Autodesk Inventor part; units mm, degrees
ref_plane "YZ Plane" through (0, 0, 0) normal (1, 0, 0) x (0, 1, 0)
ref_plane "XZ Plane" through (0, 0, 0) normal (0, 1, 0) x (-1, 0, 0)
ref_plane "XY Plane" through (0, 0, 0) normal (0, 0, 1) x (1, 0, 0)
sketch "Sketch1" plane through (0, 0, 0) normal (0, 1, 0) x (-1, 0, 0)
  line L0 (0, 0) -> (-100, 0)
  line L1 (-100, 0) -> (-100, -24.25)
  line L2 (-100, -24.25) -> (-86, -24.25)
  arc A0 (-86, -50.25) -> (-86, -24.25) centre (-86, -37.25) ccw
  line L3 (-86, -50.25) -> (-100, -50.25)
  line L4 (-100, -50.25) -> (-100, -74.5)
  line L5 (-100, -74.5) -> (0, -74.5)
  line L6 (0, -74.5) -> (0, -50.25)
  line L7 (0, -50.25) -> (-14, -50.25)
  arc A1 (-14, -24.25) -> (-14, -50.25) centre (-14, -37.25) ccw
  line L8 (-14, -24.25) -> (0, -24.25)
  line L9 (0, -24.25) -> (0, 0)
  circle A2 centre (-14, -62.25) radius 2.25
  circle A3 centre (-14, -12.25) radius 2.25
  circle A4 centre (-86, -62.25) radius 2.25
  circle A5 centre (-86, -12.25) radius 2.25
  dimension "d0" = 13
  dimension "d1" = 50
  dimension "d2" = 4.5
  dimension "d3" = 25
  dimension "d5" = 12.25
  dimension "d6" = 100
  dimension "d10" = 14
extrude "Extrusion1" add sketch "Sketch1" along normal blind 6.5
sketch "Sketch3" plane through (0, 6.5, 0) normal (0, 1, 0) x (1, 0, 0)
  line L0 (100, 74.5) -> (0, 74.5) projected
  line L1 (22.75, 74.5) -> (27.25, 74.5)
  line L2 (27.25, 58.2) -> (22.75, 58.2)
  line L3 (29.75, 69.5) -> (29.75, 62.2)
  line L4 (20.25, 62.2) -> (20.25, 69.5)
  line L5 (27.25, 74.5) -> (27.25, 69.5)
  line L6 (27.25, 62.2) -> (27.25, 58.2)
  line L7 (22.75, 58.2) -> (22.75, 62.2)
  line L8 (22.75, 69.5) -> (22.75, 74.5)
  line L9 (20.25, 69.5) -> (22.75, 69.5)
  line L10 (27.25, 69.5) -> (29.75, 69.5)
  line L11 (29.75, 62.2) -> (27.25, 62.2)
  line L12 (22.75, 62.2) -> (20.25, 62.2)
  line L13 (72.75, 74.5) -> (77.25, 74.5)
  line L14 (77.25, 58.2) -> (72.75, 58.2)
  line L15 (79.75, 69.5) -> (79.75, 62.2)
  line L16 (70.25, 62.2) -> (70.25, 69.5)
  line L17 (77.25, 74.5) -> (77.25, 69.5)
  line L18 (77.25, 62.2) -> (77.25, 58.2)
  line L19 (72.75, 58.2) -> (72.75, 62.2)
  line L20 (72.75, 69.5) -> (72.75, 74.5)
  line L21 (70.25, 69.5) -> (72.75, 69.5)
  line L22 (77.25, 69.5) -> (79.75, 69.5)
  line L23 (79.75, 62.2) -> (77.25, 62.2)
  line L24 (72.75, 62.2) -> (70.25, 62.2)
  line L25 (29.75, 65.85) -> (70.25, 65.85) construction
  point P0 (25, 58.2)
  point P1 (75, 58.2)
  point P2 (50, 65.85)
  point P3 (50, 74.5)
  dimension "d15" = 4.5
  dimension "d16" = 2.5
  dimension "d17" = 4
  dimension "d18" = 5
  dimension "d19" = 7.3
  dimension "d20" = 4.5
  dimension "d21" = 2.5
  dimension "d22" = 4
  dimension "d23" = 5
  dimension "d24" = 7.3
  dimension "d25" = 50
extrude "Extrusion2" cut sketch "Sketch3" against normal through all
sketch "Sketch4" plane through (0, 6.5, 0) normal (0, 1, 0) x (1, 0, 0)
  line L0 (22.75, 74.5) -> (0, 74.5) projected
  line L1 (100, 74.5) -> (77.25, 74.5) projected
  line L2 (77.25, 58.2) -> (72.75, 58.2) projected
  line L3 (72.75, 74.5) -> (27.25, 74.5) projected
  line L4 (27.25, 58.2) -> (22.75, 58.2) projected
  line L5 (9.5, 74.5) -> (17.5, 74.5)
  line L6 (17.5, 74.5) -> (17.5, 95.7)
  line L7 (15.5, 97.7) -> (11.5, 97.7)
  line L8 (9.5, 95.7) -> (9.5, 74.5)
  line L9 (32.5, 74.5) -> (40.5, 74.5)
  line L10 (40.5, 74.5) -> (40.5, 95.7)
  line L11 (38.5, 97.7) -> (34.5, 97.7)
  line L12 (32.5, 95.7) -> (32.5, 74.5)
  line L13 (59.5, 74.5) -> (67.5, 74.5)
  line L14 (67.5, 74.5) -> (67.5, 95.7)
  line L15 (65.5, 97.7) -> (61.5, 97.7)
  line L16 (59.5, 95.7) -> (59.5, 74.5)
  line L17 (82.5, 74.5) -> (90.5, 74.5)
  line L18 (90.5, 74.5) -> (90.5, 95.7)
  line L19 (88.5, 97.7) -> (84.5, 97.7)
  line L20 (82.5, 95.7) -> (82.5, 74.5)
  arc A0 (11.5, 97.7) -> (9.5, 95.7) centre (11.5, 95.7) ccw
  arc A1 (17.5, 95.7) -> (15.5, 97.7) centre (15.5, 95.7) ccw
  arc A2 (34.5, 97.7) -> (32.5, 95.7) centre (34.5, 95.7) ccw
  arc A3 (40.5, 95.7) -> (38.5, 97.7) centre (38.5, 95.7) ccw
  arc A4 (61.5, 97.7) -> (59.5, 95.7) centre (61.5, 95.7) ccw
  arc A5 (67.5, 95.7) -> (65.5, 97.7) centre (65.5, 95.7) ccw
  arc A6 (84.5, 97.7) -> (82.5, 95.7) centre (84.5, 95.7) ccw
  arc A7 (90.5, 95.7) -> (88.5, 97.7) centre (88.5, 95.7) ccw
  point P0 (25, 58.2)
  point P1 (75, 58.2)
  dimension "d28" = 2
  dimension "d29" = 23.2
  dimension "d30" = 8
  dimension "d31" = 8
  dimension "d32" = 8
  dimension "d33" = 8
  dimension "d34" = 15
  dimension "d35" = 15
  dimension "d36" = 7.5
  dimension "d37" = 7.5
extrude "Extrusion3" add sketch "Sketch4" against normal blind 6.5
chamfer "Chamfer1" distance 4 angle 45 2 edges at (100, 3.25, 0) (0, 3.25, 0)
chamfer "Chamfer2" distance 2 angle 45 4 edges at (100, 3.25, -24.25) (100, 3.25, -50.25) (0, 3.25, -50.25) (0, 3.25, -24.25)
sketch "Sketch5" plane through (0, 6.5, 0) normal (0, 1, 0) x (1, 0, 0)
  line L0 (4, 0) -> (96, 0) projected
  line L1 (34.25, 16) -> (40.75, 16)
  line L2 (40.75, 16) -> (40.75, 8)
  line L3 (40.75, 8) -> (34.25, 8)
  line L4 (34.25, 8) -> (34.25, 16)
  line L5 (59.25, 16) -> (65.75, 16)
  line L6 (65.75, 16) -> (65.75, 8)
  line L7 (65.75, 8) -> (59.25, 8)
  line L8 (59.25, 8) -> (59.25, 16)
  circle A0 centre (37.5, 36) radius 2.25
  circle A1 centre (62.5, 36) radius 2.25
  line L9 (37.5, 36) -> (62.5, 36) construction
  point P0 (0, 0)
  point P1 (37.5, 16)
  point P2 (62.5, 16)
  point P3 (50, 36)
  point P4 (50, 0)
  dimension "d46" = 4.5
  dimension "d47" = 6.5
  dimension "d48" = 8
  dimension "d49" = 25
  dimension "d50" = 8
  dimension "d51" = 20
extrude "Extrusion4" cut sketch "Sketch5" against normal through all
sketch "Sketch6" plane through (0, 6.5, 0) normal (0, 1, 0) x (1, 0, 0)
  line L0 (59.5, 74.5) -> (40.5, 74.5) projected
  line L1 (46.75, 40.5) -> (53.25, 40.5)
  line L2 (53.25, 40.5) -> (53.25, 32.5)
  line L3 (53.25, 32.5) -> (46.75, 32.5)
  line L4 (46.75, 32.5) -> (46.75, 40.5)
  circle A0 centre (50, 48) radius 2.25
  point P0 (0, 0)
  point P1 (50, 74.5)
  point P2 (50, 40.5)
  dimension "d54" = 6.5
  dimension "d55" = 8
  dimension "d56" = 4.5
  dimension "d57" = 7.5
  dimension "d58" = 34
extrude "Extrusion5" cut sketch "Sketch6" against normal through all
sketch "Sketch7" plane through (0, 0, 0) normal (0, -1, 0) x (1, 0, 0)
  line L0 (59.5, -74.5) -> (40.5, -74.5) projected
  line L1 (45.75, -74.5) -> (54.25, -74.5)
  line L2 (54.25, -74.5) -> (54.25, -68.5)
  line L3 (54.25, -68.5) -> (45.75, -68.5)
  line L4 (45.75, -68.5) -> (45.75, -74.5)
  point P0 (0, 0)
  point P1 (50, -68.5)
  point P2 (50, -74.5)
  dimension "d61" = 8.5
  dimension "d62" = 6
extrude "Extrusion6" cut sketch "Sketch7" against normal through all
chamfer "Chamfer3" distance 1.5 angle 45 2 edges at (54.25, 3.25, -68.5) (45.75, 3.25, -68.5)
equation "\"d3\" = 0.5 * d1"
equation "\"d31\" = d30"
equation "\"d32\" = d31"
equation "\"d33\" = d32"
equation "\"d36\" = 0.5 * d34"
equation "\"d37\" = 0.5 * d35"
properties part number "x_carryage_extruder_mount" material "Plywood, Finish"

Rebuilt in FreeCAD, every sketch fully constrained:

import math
import FreeCAD as App
import Part
import Sketcher


def edges_at(feature, points):
    """Names of the edges that pass closest to the given points."""
    edges = feature.Shape.Edges
    near = lambda p: min(range(len(edges)), key=lambda i: edges[i].distToShape(Part.Vertex(*p))[0])
    return sorted({f"Edge{near(p) + 1}" for p in points})


def add_polygon(sketch, points):
    """Adds a closed chain of lines whose ends are joined by coincident constraints."""
    first, n = sketch.GeometryCount, len(points)
    for a, b in zip(points, points[1:] + points[:1]):
        sketch.addGeometry(Part.LineSegment(App.Vector(*a, 0), App.Vector(*b, 0)), False)
    for i in range(n):
        sketch.addConstraint(Sketcher.Constraint("Coincident", first + i, 2, first + (i + 1) % n, 1))

doc = App.newDocument("Part")
body = doc.addObject("PartDesign::Body", "Body")

# Sketch on XZ plane
sketch1 = doc.addObject("Sketcher::SketchObject", "Sketch")
body.addObject(sketch1)
sketch1.AttachmentSupport = (doc.XZ_Plane, [""])
sketch1.MapMode = "FlatFace"
sketch1.addGeometry([
    Part.LineSegment(App.Vector(0, -24.2, 0), App.Vector(0, 0, 0)),  # 0
    Part.LineSegment(App.Vector(0, 0, 0), App.Vector(100, 0, 0)),  # 1
    Part.LineSegment(App.Vector(100, 0, 0), App.Vector(100, -24.2, 0)),  # 2
    Part.LineSegment(App.Vector(100, -24.2, 0), App.Vector(86, -24.2, 0)),  # 3
    Part.ArcOfCircle(Part.Circle(App.Vector(86, -37.2, 0), App.Vector(0, 0, 1), 13), math.radians(90), math.radians(270)),  # 4
    Part.LineSegment(App.Vector(86, -50.2, 0), App.Vector(100, -50.2, 0)),  # 5
    Part.LineSegment(App.Vector(100, -50.2, 0), App.Vector(100, -74.5, 0)),  # 6
    Part.LineSegment(App.Vector(100, -74.5, 0), App.Vector(0, -74.5, 0)),  # 7
    Part.LineSegment(App.Vector(0, -74.5, 0), App.Vector(0, -50.2, 0)),  # 8
    Part.LineSegment(App.Vector(0, -50.2, 0), App.Vector(14, -50.2, 0)),  # 9
    Part.ArcOfCircle(Part.Circle(App.Vector(14, -37.2, 0), App.Vector(0, 0, 1), 13), math.radians(-90), math.radians(90)),  # 10
    Part.LineSegment(App.Vector(14, -24.2, 0), App.Vector(0, -24.2, 0)),  # 11
    Part.Circle(App.Vector(86, -62.2, 0), App.Vector(0, 0, 1), 2.2),  # 12
    Part.Circle(App.Vector(14, -62.2, 0), App.Vector(0, 0, 1), 2.2),  # 13
    Part.Circle(App.Vector(86, -12.2, 0), App.Vector(0, 0, 1), 2.2),  # 14
    Part.Circle(App.Vector(14, -12.2, 0), App.Vector(0, 0, 1), 2.2),  # 15
], False)
sketch1.addConstraint([
    Sketcher.Constraint("Coincident", 0, 2, 1, 1),
    Sketcher.Constraint("Coincident", 1, 2, 2, 1),
    Sketcher.Constraint("Coincident", 2, 2, 3, 1),
    Sketcher.Constraint("Tangent", 3, 2, 4, 1),
    Sketcher.Constraint("Tangent", 4, 2, 5, 1),
    Sketcher.Constraint("Coincident", 5, 2, 6, 1),
    Sketcher.Constraint("Coincident", 6, 2, 7, 1),
    Sketcher.Constraint("Coincident", 7, 2, 8, 1),
    Sketcher.Constraint("Coincident", 8, 2, 9, 1),
    Sketcher.Constraint("Tangent", 9, 2, 10, 1),
    Sketcher.Constraint("Tangent", 10, 2, 11, 1),
    Sketcher.Constraint("Coincident", 11, 2, 0, 1),
    Sketcher.Constraint("Vertical", 0),
    Sketcher.Constraint("Horizontal", 1),
    Sketcher.Constraint("Vertical", 2),
    Sketcher.Constraint("Horizontal", 3),
    Sketcher.Constraint("Horizontal", 5),
    Sketcher.Constraint("Vertical", 6),
    Sketcher.Constraint("Horizontal", 7),
    Sketcher.Constraint("Vertical", 8),
    Sketcher.Constraint("Horizontal", 9),
    Sketcher.Constraint("Horizontal", 11),
    Sketcher.Constraint("Coincident", 0, 2, -1, 1),
    Sketcher.Constraint("Equal", 4, 10),
    Sketcher.Constraint("Equal", 12, 13),
    Sketcher.Constraint("Equal", 13, 14),
    Sketcher.Constraint("Equal", 14, 15),
    Sketcher.Constraint("PointOnObject", 7, 2, -2),
    Sketcher.Constraint("Horizontal", 4, 3, 10, 3),
    Sketcher.Constraint("Horizontal", 12, 3, 13, 3),
    Sketcher.Constraint("Horizontal", 14, 3, 15, 3),
    Sketcher.Constraint("Vertical", 4, 3, 12, 3),
    Sketcher.Constraint("Vertical", 10, 3, 13, 3),
    Sketcher.Constraint("Vertical", 12, 3, 14, 3),
    Sketcher.Constraint("Vertical", 13, 3, 15, 3),
    Sketcher.Constraint("Vertical", 2, 2, 5, 2),
    Sketcher.Constraint("Equal", 5, 9),
    Sketcher.Constraint("Equal", 2, 6),
    Sketcher.Constraint("Radius", 4, 13.0),
    Sketcher.Constraint("Diameter", 12, 4.5),
    Sketcher.Constraint("DistanceX", 1, 1, 1, 2, 100.0),
    Sketcher.Constraint("DistanceX", 3, 2, 3, 1, 14.0),
    Sketcher.Constraint("DistanceY", 12, 3, 4, 3, 25.0),
    Sketcher.Constraint("DistanceY", 4, 3, 14, 3, 25.0),
    Sketcher.Constraint("DistanceY", 14, 3, -1, 1, 12.25),
])
pad1 = doc.addObject("PartDesign::Pad", "Pad")
body.addObject(pad1)
pad1.Profile = sketch1
pad1.Length = 6.5
pad1.Reversed = True

# Sketch on XZ plane
sketch2 = doc.addObject("Sketcher::SketchObject", "Sketch001")
body.addObject(sketch2)
sketch2.AttachmentSupport = (doc.XZ_Plane, [""])
sketch2.MapMode = "FlatFace"
sketch2.AttachmentOffset = App.Placement(App.Vector(0, 0, -6.5), App.Rotation())
add_polygon(sketch2, [(77.2, -69.5), (77.2, -74.5), (72.8, -74.5), (72.8, -69.5), (70.2, -69.5), (70.2, -62.2), (72.8, -62.2), (72.8, -58.2), (77.2, -58.2), (77.2, -62.2), (79.8, -62.2), (79.8, -69.5)])  # lines 0-11
add_polygon(sketch2, [(27.2, -69.5), (27.2, -74.5), (22.8, -74.5), (22.8, -69.5), (20.2, -69.5), (20.2, -62.2), (22.8, -62.2), (22.8, -58.2), (27.2, -58.2), (27.2, -62.2), (29.8, -62.2), (29.8, -69.5)])  # lines 12-23
sketch2.addConstraint([
    Sketcher.Constraint("Vertical", 0),
    Sketcher.Constraint("Horizontal", 1),
    Sketcher.Constraint("Vertical", 2),
    Sketcher.Constraint("Horizontal", 3),
    Sketcher.Constraint("Vertical", 4),
    Sketcher.Constraint("Horizontal", 5),
    Sketcher.Constraint("Vertical", 6),
    Sketcher.Constraint("Horizontal", 7),
    Sketcher.Constraint("Vertical", 8),
    Sketcher.Constraint("Horizontal", 9),
    Sketcher.Constraint("Vertical", 10),
    Sketcher.Constraint("Horizontal", 11),
    Sketcher.Constraint("Vertical", 12),
    Sketcher.Constraint("Horizontal", 13),
    Sketcher.Constraint("Vertical", 14),
    Sketcher.Constraint("Horizontal", 15),
    Sketcher.Constraint("Vertical", 16),
    Sketcher.Constraint("Horizontal", 17),
    Sketcher.Constraint("Vertical", 18),
    Sketcher.Constraint("Horizontal", 19),
    Sketcher.Constraint("Vertical", 20),
    Sketcher.Constraint("Horizontal", 21),
    Sketcher.Constraint("Vertical", 22),
    Sketcher.Constraint("Horizontal", 23),
    Sketcher.Constraint("Horizontal", 5, 2, 8, 2),
    Sketcher.Constraint("Horizontal", 3, 2, 10, 2),
    Sketcher.Constraint("Horizontal", 1, 2, 12, 2),
    Sketcher.Constraint("Horizontal", 11, 2, 14, 2),
    Sketcher.Constraint("Horizontal", 9, 2, 16, 2),
    Sketcher.Constraint("Horizontal", 7, 2, 18, 2),
    Sketcher.Constraint("Horizontal", 17, 2, 20, 2),
    Sketcher.Constraint("Horizontal", 15, 2, 22, 2),
    Sketcher.Constraint("Vertical", 2, 2, 5, 2),
    Sketcher.Constraint("Vertical", 0, 2, 7, 2),
    Sketcher.Constraint("Vertical", 14, 2, 17, 2),
    Sketcher.Constraint("Vertical", 12, 2, 19, 2),
    Sketcher.Constraint("Equal", 5, 9),
    Sketcher.Constraint("Equal", 7, 13),
    Sketcher.Constraint("Equal", 11, 15),
    Sketcher.Constraint("Equal", 17, 21),
    Sketcher.Constraint("DistanceY", 0, 2, 0, 1, 5.0),
    Sketcher.Constraint("DistanceY", 6, 1, 6, 2, 4.0),
    Sketcher.Constraint("DistanceX", 1, 2, 1, 1, 4.5),
    Sketcher.Constraint("DistanceX", 3, 2, 3, 1, 2.5),
    Sketcher.Constraint("DistanceY", 4, 1, 4, 2, 7.3),
    Sketcher.Constraint("DistanceX", 13, 2, 1, 2, 50.0),
    Sketcher.Constraint("DistanceY", 0, 2, -1, 1, 74.5),
    Sketcher.Constraint("DistanceX", -1, 1, 0, 2, 77.25),
])
pocket1 = doc.addObject("PartDesign::Pocket", "Pocket")
body.addObject(pocket1)
pocket1.Profile = sketch2
pocket1.Type = "ThroughAll"
pocket1.Reversed = True

# Sketch on XZ plane
sketch3 = doc.addObject("Sketcher::SketchObject", "Sketch002")
body.addObject(sketch3)
sketch3.AttachmentSupport = (doc.XZ_Plane, [""])
sketch3.MapMode = "FlatFace"
sketch3.AttachmentOffset = App.Placement(App.Vector(0, 0, -6.5), App.Rotation())
sketch3.addGeometry([
    Part.LineSegment(App.Vector(9.5, -74.5, 0), App.Vector(17.5, -74.5, 0)),  # 0
    Part.LineSegment(App.Vector(17.5, -74.5, 0), App.Vector(17.5, -95.7, 0)),  # 1
    Part.ArcOfCircle(Part.Circle(App.Vector(15.5, -95.7, 0), App.Vector(0, 0, 1), 2), math.radians(-90), math.radians(0)),  # 2
    Part.LineSegment(App.Vector(15.5, -97.7, 0), App.Vector(11.5, -97.7, 0)),  # 3
    Part.ArcOfCircle(Part.Circle(App.Vector(11.5, -95.7, 0), App.Vector(0, 0, 1), 2), math.radians(180), math.radians(270)),  # 4
    Part.LineSegment(App.Vector(9.5, -95.7, 0), App.Vector(9.5, -74.5, 0)),  # 5
    Part.LineSegment(App.Vector(82.5, -74.5, 0), App.Vector(90.5, -74.5, 0)),  # 6
    Part.LineSegment(App.Vector(90.5, -74.5, 0), App.Vector(90.5, -95.7, 0)),  # 7
    Part.ArcOfCircle(Part.Circle(App.Vector(88.5, -95.7, 0), App.Vector(0, 0, 1), 2), math.radians(-90), math.radians(0)),  # 8
    Part.LineSegment(App.Vector(88.5, -97.7, 0), App.Vector(84.5, -97.7, 0)),  # 9
    Part.ArcOfCircle(Part.Circle(App.Vector(84.5, -95.7, 0), App.Vector(0, 0, 1), 2), math.radians(180), math.radians(270)),  # 10
    Part.LineSegment(App.Vector(82.5, -95.7, 0), App.Vector(82.5, -74.5, 0)),  # 11
    Part.LineSegment(App.Vector(32.5, -74.5, 0), App.Vector(40.5, -74.5, 0)),  # 12
    Part.LineSegment(App.Vector(40.5, -74.5, 0), App.Vector(40.5, -95.7, 0)),  # 13
    Part.ArcOfCircle(Part.Circle(App.Vector(38.5, -95.7, 0), App.Vector(0, 0, 1), 2), math.radians(-90), math.radians(0)),  # 14
    Part.LineSegment(App.Vector(38.5, -97.7, 0), App.Vector(34.5, -97.7, 0)),  # 15
    Part.ArcOfCircle(Part.Circle(App.Vector(34.5, -95.7, 0), App.Vector(0, 0, 1), 2), math.radians(180), math.radians(270)),  # 16
    Part.LineSegment(App.Vector(32.5, -95.7, 0), App.Vector(32.5, -74.5, 0)),  # 17
    Part.LineSegment(App.Vector(59.5, -74.5, 0), App.Vector(67.5, -74.5, 0)),  # 18
    Part.LineSegment(App.Vector(67.5, -74.5, 0), App.Vector(67.5, -95.7, 0)),  # 19
    Part.ArcOfCircle(Part.Circle(App.Vector(65.5, -95.7, 0), App.Vector(0, 0, 1), 2), math.radians(-90), math.radians(0)),  # 20
    Part.LineSegment(App.Vector(65.5, -97.7, 0), App.Vector(61.5, -97.7, 0)),  # 21
    Part.ArcOfCircle(Part.Circle(App.Vector(61.5, -95.7, 0), App.Vector(0, 0, 1), 2), math.radians(180), math.radians(270)),  # 22
    Part.LineSegment(App.Vector(59.5, -95.7, 0), App.Vector(59.5, -74.5, 0)),  # 23
], False)
sketch3.addConstraint([
    Sketcher.Constraint("Coincident", 0, 2, 1, 1),
    Sketcher.Constraint("Tangent", 1, 2, 2, 2),
    Sketcher.Constraint("Tangent", 2, 1, 3, 1),
    Sketcher.Constraint("Tangent", 3, 2, 4, 2),
    Sketcher.Constraint("Tangent", 4, 1, 5, 1),
    Sketcher.Constraint("Coincident", 5, 2, 0, 1),
    Sketcher.Constraint("Coincident", 6, 2, 7, 1),
    Sketcher.Constraint("Tangent", 7, 2, 8, 2),
    Sketcher.Constraint("Tangent", 8, 1, 9, 1),
    Sketcher.Constraint("Tangent", 9, 2, 10, 2),
    Sketcher.Constraint("Tangent", 10, 1, 11, 1),
    Sketcher.Constraint("Coincident", 11, 2, 6, 1),
    Sketcher.Constraint("Coincident", 12, 2, 13, 1),
    Sketcher.Constraint("Tangent", 13, 2, 14, 2),
    Sketcher.Constraint("Tangent", 14, 1, 15, 1),
    Sketcher.Constraint("Tangent", 15, 2, 16, 2),
    Sketcher.Constraint("Tangent", 16, 1, 17, 1),
    Sketcher.Constraint("Coincident", 17, 2, 12, 1),
    Sketcher.Constraint("Coincident", 18, 2, 19, 1),
    Sketcher.Constraint("Tangent", 19, 2, 20, 2),
    Sketcher.Constraint("Tangent", 20, 1, 21, 1),
    Sketcher.Constraint("Tangent", 21, 2, 22, 2),
    Sketcher.Constraint("Tangent", 22, 1, 23, 1),
    Sketcher.Constraint("Coincident", 23, 2, 18, 1),
    Sketcher.Constraint("Horizontal", 0),
    Sketcher.Constraint("Vertical", 1),
    Sketcher.Constraint("Horizontal", 3),
    Sketcher.Constraint("Vertical", 5),
    Sketcher.Constraint("Horizontal", 6),
    Sketcher.Constraint("Vertical", 7),
    Sketcher.Constraint("Horizontal", 9),
    Sketcher.Constraint("Vertical", 11),
    Sketcher.Constraint("Horizontal", 12),
    Sketcher.Constraint("Vertical", 13),
    Sketcher.Constraint("Horizontal", 15),
    Sketcher.Constraint("Vertical", 17),
    Sketcher.Constraint("Horizontal", 18),
    Sketcher.Constraint("Vertical", 19),
    Sketcher.Constraint("Horizontal", 21),
    Sketcher.Constraint("Vertical", 23),
    Sketcher.Constraint("Equal", 2, 4),
    Sketcher.Constraint("Equal", 4, 8),
    Sketcher.Constraint("Equal", 8, 10),
    Sketcher.Constraint("Equal", 10, 14),
    Sketcher.Constraint("Equal", 14, 16),
    Sketcher.Constraint("Equal", 16, 20),
    Sketcher.Constraint("Equal", 20, 22),
    Sketcher.Constraint("Horizontal", 4, 3, 8, 3),
    Sketcher.Constraint("Horizontal", 10, 3, 14, 3),
    Sketcher.Constraint("Horizontal", 16, 3, 20, 3),
    Sketcher.Constraint("Horizontal", 5, 2, 6, 2),
    Sketcher.Constraint("Horizontal", 11, 2, 12, 2),
    Sketcher.Constraint("Horizontal", 17, 2, 18, 2),
    Sketcher.Constraint("Equal", 0, 6),
    Sketcher.Constraint("Equal", 6, 12),
    Sketcher.Constraint("Equal", 12, 18),
    Sketcher.Constraint("Radius", 2, 2.0),
    Sketcher.Constraint("DistanceX", 0, 1, 0, 2, 8.0),
    Sketcher.Constraint("DistanceX", 0, 2, 17, 2, 15.0),
    Sketcher.Constraint("DistanceX", 18, 2, 11, 2, 15.0),
    Sketcher.Constraint("DistanceY", 8, 1, 6, 2, 23.2),
    Sketcher.Constraint("DistanceX", 2, 3, 8, 3, 73.0),
    Sketcher.Constraint("DistanceX", -1, 1, 2, 3, 15.5),
    Sketcher.Constraint("DistanceY", 2, 3, -1, 1, 95.7),
])
pad2 = doc.addObject("PartDesign::Pad", "Pad001")
body.addObject(pad2)
pad2.Profile = sketch3
pad2.Length = 6.5
doc.recompute()

chamfer = doc.addObject("PartDesign::Chamfer", "Chamfer")
body.addObject(chamfer)
chamfer.Base = (pad2, edges_at(pad2, [(100, 3.25, 0), (0, 3.25, 0)]))
chamfer.Size = 4
doc.recompute()

chamfer2 = doc.addObject("PartDesign::Chamfer", "Chamfer001")
body.addObject(chamfer2)
chamfer2.Base = (chamfer, edges_at(chamfer, [
    (100, 3.25, -24.25),
    (100, 3.25, -50.25),
    (0, 3.25, -50.25),
    (0, 3.25, -24.25),
]))
chamfer2.Size = 2

# Sketch on XZ plane
sketch4 = doc.addObject("Sketcher::SketchObject", "Sketch003")
body.addObject(sketch4)
sketch4.AttachmentSupport = (doc.XZ_Plane, [""])
sketch4.MapMode = "FlatFace"
sketch4.AttachmentOffset = App.Placement(App.Vector(0, 0, -6.5), App.Rotation())
add_polygon(sketch4, [(40.8, -16), (34.2, -16), (34.2, -8), (40.8, -8)])  # lines 0-3
add_polygon(sketch4, [(65.8, -16), (59.2, -16), (59.2, -8), (65.8, -8)])  # lines 4-7
sketch4.addGeometry(Part.Circle(App.Vector(37.5, -36, 0), App.Vector(0, 0, 1), 2.2), False)  # 8
sketch4.addGeometry(Part.Circle(App.Vector(62.5, -36, 0), App.Vector(0, 0, 1), 2.2), False)  # 9
sketch4.addConstraint([
    Sketcher.Constraint("Horizontal", 0),
    Sketcher.Constraint("Vertical", 1),
    Sketcher.Constraint("Horizontal", 2),
    Sketcher.Constraint("Vertical", 3),
    Sketcher.Constraint("Horizontal", 4),
    Sketcher.Constraint("Vertical", 5),
    Sketcher.Constraint("Horizontal", 6),
    Sketcher.Constraint("Vertical", 7),
    Sketcher.Constraint("Equal", 8, 9),
    Sketcher.Constraint("Horizontal", 8, 3, 9, 3),
    Sketcher.Constraint("Horizontal", 3, 2, 4, 2),
    Sketcher.Constraint("Horizontal", 2, 2, 5, 2),
    Sketcher.Constraint("Equal", 2, 4),
    Sketcher.Constraint("Diameter", 8, 4.5),
    Sketcher.Constraint("DistanceY", 1, 1, 1, 2, 8.0),
    Sketcher.Constraint("DistanceX", 0, 2, 0, 1, 6.5),
    Sketcher.Constraint("DistanceY", 1, 2, -1, 1, 8.0),
    Sketcher.Constraint("DistanceX", 8, 3, 9, 3, 25.0),
    Sketcher.Constraint("DistanceY", 8, 3, 0, 2, 20.0),
    Sketcher.Constraint("DistanceX", 0, 2, 4, 2, 25.0),
    Sketcher.Constraint("DistanceX", -1, 1, 8, 3, 37.5),
    Sketcher.Constraint("DistanceX", -1, 1, 0, 2, 34.25),
])
pocket2 = doc.addObject("PartDesign::Pocket", "Pocket001")
body.addObject(pocket2)
pocket2.Profile = sketch4
pocket2.Type = "ThroughAll"
pocket2.Reversed = True

# Sketch on XZ plane
sketch5 = doc.addObject("Sketcher::SketchObject", "Sketch004")
body.addObject(sketch5)
sketch5.AttachmentSupport = (doc.XZ_Plane, [""])
sketch5.MapMode = "FlatFace"
sketch5.AttachmentOffset = App.Placement(App.Vector(0, 0, -6.5), App.Rotation())
add_polygon(sketch5, [(53.2, -40.5), (46.8, -40.5), (46.8, -32.5), (53.2, -32.5)])  # lines 0-3
sketch5.addGeometry(Part.Circle(App.Vector(50, -48, 0), App.Vector(0, 0, 1), 2.2), False)  # 4
sketch5.addConstraint([
    Sketcher.Constraint("Horizontal", 0),
    Sketcher.Constraint("Vertical", 1),
    Sketcher.Constraint("Horizontal", 2),
    Sketcher.Constraint("Vertical", 3),
    Sketcher.Constraint("Diameter", 4, 4.5),
    Sketcher.Constraint("DistanceY", 1, 1, 1, 2, 8.0),
    Sketcher.Constraint("DistanceX", 0, 2, 0, 1, 6.5),
    Sketcher.Constraint("DistanceY", 4, 3, 0, 2, 7.5),
    Sketcher.Constraint("DistanceX", -1, 1, 4, 3, 50.0),
    Sketcher.Constraint("DistanceY", 4, 3, -1, 1, 48.0),
    Sketcher.Constraint("DistanceX", -1, 1, 0, 2, 46.75),
])
pocket3 = doc.addObject("PartDesign::Pocket", "Pocket002")
body.addObject(pocket3)
pocket3.Profile = sketch5
pocket3.Type = "ThroughAll"
pocket3.Reversed = True

# Sketch on XZ plane
sketch6 = doc.addObject("Sketcher::SketchObject", "Sketch005")
body.addObject(sketch6)
sketch6.AttachmentSupport = (doc.XZ_Plane, [""])
sketch6.MapMode = "FlatFace"
add_polygon(sketch6, [(46, -74), (54, -74), (54, -68), (46, -68)])  # lines 0-3
sketch6.addConstraint([
    Sketcher.Constraint("Horizontal", 0),
    Sketcher.Constraint("Vertical", 1),
    Sketcher.Constraint("Horizontal", 2),
    Sketcher.Constraint("Vertical", 3),
    Sketcher.Constraint("DistanceY", 1, 1, 1, 2, 6.0),
    Sketcher.Constraint("DistanceX", 0, 1, 0, 2, 8.5),
    Sketcher.Constraint("DistanceY", 0, 2, -1, 1, 74.5),
    Sketcher.Constraint("DistanceX", -1, 1, 0, 2, 54.25),
])
pocket4 = doc.addObject("PartDesign::Pocket", "Pocket003")
body.addObject(pocket4)
pocket4.Profile = sketch6
pocket4.Type = "ThroughAll"
doc.recompute()

chamfer3 = doc.addObject("PartDesign::Chamfer", "Chamfer002")
body.addObject(chamfer3)
chamfer3.Base = (pocket4, edges_at(pocket4, [(54.25, 3.25, -68.5), (45.75, 3.25, -68.5)]))
chamfer3.Size = 1.5

doc.recompute()
